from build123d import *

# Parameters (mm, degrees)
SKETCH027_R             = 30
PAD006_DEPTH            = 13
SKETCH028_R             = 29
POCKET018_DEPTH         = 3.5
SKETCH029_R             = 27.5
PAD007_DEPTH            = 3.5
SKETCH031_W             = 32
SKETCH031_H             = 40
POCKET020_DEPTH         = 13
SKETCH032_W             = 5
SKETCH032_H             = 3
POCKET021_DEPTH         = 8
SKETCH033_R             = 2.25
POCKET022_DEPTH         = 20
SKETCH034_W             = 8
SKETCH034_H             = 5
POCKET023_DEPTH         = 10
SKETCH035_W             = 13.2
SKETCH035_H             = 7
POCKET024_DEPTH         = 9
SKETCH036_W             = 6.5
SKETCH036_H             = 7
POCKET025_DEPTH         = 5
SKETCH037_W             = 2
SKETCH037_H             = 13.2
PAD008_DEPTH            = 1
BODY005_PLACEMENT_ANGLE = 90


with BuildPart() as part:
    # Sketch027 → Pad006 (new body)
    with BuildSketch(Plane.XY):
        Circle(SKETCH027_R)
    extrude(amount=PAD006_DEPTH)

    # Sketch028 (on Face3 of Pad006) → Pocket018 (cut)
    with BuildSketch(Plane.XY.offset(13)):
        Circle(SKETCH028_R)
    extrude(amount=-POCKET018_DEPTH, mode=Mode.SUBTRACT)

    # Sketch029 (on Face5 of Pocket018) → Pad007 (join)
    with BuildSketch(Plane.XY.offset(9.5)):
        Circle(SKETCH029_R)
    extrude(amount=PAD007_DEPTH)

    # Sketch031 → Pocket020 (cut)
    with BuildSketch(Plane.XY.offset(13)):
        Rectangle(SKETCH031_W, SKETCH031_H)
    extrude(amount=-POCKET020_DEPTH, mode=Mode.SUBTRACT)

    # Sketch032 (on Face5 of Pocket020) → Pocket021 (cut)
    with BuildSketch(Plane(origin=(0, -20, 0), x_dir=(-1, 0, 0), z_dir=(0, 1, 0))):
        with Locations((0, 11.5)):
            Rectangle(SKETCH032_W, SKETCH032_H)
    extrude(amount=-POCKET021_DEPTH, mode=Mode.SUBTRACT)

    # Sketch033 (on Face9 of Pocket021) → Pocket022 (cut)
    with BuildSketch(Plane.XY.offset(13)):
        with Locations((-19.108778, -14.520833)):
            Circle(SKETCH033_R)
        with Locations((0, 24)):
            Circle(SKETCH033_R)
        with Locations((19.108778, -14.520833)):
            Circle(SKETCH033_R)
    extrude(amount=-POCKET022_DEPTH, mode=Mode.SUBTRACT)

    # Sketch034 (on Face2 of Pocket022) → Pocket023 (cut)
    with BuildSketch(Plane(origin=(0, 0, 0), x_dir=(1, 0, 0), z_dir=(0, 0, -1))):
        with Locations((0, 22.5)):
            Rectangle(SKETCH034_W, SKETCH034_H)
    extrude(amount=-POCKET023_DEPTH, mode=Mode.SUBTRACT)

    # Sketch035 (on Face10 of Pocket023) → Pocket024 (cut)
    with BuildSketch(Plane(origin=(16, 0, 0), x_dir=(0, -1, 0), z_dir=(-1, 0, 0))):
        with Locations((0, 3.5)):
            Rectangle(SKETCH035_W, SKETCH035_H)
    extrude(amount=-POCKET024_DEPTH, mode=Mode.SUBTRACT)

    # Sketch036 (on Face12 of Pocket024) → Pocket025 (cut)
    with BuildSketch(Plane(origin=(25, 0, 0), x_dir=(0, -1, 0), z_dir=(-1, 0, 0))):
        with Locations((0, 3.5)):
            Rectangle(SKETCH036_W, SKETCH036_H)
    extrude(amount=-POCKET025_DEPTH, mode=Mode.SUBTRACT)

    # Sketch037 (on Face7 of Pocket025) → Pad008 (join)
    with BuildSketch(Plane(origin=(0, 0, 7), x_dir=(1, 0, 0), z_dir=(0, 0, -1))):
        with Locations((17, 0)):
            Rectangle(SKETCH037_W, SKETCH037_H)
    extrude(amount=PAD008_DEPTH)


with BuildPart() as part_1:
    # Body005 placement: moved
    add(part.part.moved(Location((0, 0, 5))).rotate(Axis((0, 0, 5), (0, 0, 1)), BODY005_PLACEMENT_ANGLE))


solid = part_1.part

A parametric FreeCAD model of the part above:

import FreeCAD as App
import Part
import Sketcher

V = App.Vector


def add_polygon(sketch, points):
    """Adds a closed chain of lines whose ends are joined by coincident constraints."""
    first, n = sketch.GeometryCount, len(points)
    for a, b in zip(points, points[1:] + points[:1]):
        sketch.addGeometry(Part.LineSegment(App.Vector(*a, 0), App.Vector(*b, 0)), False)
    for i in range(n):
        sketch.addConstraint(Sketcher.Constraint("Coincident", first + i, 2, first + (i + 1) % n, 1))

doc = App.newDocument("Part")
body = doc.addObject("PartDesign::Body", "Body")

sketch1 = body.newObject("Sketcher::SketchObject", "Sketch")
sketch1.AttachmentSupport = (doc.getObject("XY_Plane"), [""])
sketch1.MapMode = "FlatFace"
sketch1.addGeometry(Part.Circle(V(0, 0, 0), V(0, 0, 1), 30), False)
sketch1.addConstraint([
    Sketcher.Constraint("Coincident", 0, 3, -1, 1),
    Sketcher.Constraint("Diameter", 0, 60.0),
])
pad1 = body.newObject("PartDesign::Pad", "Pad")
pad1.Profile = sketch1
pad1.Length = 13

sketch2 = body.newObject("Sketcher::SketchObject", "Sketch001")
sketch2.AttachmentSupport = (doc.getObject("XY_Plane"), [""])
sketch2.MapMode = "FlatFace"
sketch2.AttachmentOffset = App.Placement(V(0, 0, 13), App.Rotation())
sketch2.addGeometry(Part.Circle(V(0, 0, 0), V(0, 0, 1), 29), False)
sketch2.addConstraint([
    Sketcher.Constraint("Coincident", 0, 3, -1, 1),
    Sketcher.Constraint("Diameter", 0, 58.0),
])
pocket1 = body.newObject("PartDesign::Pocket", "Pocket")
pocket1.Profile = sketch2
pocket1.Length = 3.5

sketch3 = body.newObject("Sketcher::SketchObject", "Sketch002")
sketch3.AttachmentSupport = (doc.getObject("XY_Plane"), [""])
sketch3.MapMode = "FlatFace"
sketch3.AttachmentOffset = App.Placement(V(0, 0, 9.5), App.Rotation())
sketch3.addGeometry(Part.Circle(V(0, 0, 0), V(0, 0, 1), 28), False)
sketch3.addConstraint([
    Sketcher.Constraint("Coincident", 0, 3, -1, 1),
    Sketcher.Constraint("Diameter", 0, 55.0),
])
pad2 = body.newObject("PartDesign::Pad", "Pad001")
pad2.Profile = sketch3
pad2.Length = 3.5

sketch4 = body.newObject("Sketcher::SketchObject", "Sketch003")
sketch4.AttachmentSupport = (doc.getObject("XY_Plane"), [""])
sketch4.MapMode = "FlatFace"
sketch4.AttachmentOffset = App.Placement(V(0, 0, 13), App.Rotation())
add_polygon(sketch4, [(-16, 20), (-16, -20), (16, -20), (16, 20)])
sketch4.addConstraint([
    Sketcher.Constraint("Vertical", 0),
    Sketcher.Constraint("Horizontal", 1),
    Sketcher.Constraint("Vertical", 2),
    Sketcher.Constraint("Horizontal", 3),
    Sketcher.Constraint("Symmetric", 0, 2, 2, 2, -1, 1),
    Sketcher.Constraint("DistanceX", 1, 1, 1, 2, 32.0),
    Sketcher.Constraint("DistanceY", 0, 2, 0, 1, 40.0),
])
pocket2 = body.newObject("PartDesign::Pocket", "Pocket001")
pocket2.Profile = sketch4
pocket2.Length = 13

sketch5 = body.newObject("Sketcher::SketchObject", "Sketch004")
sketch5.AttachmentSupport = (doc.getObject("XZ_Plane"), [""])
sketch5.MapMode = "FlatFace"
sketch5.AttachmentOffset = App.Placement(V(0, 0, 20), App.Rotation())
add_polygon(sketch5, [(2.5, 13), (2.5, 10), (-2.5, 10), (-2.5, 13)])
sketch5.addConstraint([
    Sketcher.Constraint("Vertical", 0),
    Sketcher.Constraint("Horizontal", 1),
    Sketcher.Constraint("Vertical", 2),
    Sketcher.Constraint("Horizontal", 3),
    Sketcher.Constraint("DistanceX", 1, 2, 1, 1, 5.0),
    Sketcher.Constraint("DistanceY", 0, 2, 0, 1, 3.0),
    Sketcher.Constraint("DistanceY", -1, 1, 0, 2, 10.0),
    Sketcher.Constraint("DistanceX", -1, 1, 0, 2, 2.5),
])
pocket3 = body.newObject("PartDesign::Pocket", "Pocket002")
pocket3.Profile = sketch5
pocket3.Length = 8
pocket3.Reversed = True

sketch6 = body.newObject("Sketcher::SketchObject", "Sketch005")
sketch6.AttachmentSupport = (doc.getObject("XY_Plane"), [""])
sketch6.MapMode = "FlatFace"
sketch6.AttachmentOffset = App.Placement(V(0, 0, 13), App.Rotation())
sketch6.addGeometry([
    Part.Circle(V(-19.1, -14.5, 0), V(0, 0, 1), 2.2),
    Part.Circle(V(0, 24, 0), V(0, 0, 1), 2.2),
    Part.Circle(V(19.1, -14.5, 0), V(0, 0, 1), 2.2),
], False)
sketch6.addConstraint([
    Sketcher.Constraint("Equal", 0, 1),
    Sketcher.Constraint("Equal", 1, 2),
    Sketcher.Constraint("Symmetric", 0, 3, 2, 3, -2),
    Sketcher.Constraint("PointOnObject", 1, 3, -2),
    Sketcher.Constraint("Diameter", 0, 4.5),
    Sketcher.Constraint("DistanceY", -1, 1, 1, 3, 24.0),
    Sketcher.Constraint("DistanceX", 0, 3, -1, 1, 19.108778),
    Sketcher.Constraint("DistanceY", 0, 3, -1, 1, 14.520833),
])
pocket4 = body.newObject("PartDesign::Pocket", "Pocket003")
pocket4.Profile = sketch6
pocket4.Length = 20

sketch7 = body.newObject("Sketcher::SketchObject", "Sketch006")
sketch7.AttachmentSupport = (doc.getObject("XY_Plane"), [""])
sketch7.MapMode = "FlatFace"
add_polygon(sketch7, [(-4, -25), (-4, -20), (4, -20), (4, -25)])
sketch7.addConstraint([
    Sketcher.Constraint("Vertical", 0),
    Sketcher.Constraint("Horizontal", 1),
    Sketcher.Constraint("Vertical", 2),
    Sketcher.Constraint("Horizontal", 3),
    Sketcher.Constraint("DistanceX", 1, 1, 1, 2, 8.0),
    Sketcher.Constraint("DistanceY", 0, 1, 0, 2, 5.0),
    Sketcher.Constraint("DistanceX", 0, 2, -1, 1, 4.0),
    Sketcher.Constraint("DistanceY", 0, 2, -1, 1, 20.0),
])
pocket5 = body.newObject("PartDesign::Pocket", "Pocket004")
pocket5.Profile = sketch7
pocket5.Length = 10
pocket5.Reversed = True

sketch8 = body.newObject("Sketcher::SketchObject", "Sketch007")
sketch8.AttachmentSupport = (doc.getObject("YZ_Plane"), [""])
sketch8.MapMode = "FlatFace"
sketch8.AttachmentOffset = App.Placement(V(0, 0, 16), App.Rotation())
add_polygon(sketch8, [(7, 7), (7, 0), (-7, 0), (-7, 7)])
sketch8.addConstraint([
    Sketcher.Constraint("Vertical", 0),
    Sketcher.Constraint("Horizontal", 1),
    Sketcher.Constraint("Vertical", 2),
    Sketcher.Constraint("Horizontal", 3),
    Sketcher.Constraint("Symmetric", 0, 2, 1, 2, -1, 1),
    Sketcher.Constraint("DistanceY", 0, 2, 0, 1, 7.0),
    Sketcher.Constraint("DistanceX", 1, 2, 1, 1, 13.2),
])
pocket6 = body.newObject("PartDesign::Pocket", "Pocket005")
pocket6.Profile = sketch8
pocket6.Length = 9
pocket6.Reversed = True

sketch9 = body.newObject("Sketcher::SketchObject", "Sketch008")
sketch9.AttachmentSupport = (doc.getObject("YZ_Plane"), [""])
sketch9.MapMode = "FlatFace"
sketch9.AttachmentOffset = App.Placement(V(0, 0, 25), App.Rotation())
add_polygon(sketch9, [(3, 7), (3, 0), (-3, 0), (-3, 7)])
sketch9.addConstraint([
    Sketcher.Constraint("Vertical", 0),
    Sketcher.Constraint("Horizontal", 1),
    Sketcher.Constraint("Vertical", 2),
    Sketcher.Constraint("Horizontal", 3),
    Sketcher.Constraint("Symmetric", 0, 2, 1, 2, -1, 1),
    Sketcher.Constraint("DistanceY", 0, 2, 0, 1, 7.0),
    Sketcher.Constraint("DistanceX", 1, 2, 1, 1, 6.5),
])
pocket7 = body.newObject("PartDesign::Pocket", "Pocket006")
pocket7.Profile = sketch9
pocket7.Length = 5
pocket7.Reversed = True

sketch10 = body.newObject("Sketcher::SketchObject", "Sketch009")
sketch10.AttachmentSupport = (doc.getObject("XY_Plane"), [""])
sketch10.MapMode = "FlatFace"
sketch10.AttachmentOffset = App.Placement(V(0, 0, 7), App.Rotation())
add_polygon(sketch10, [(16, -6.6), (16, 6.6), (18, 6.6), (18, -6.6)])
sketch10.addConstraint([
    Sketcher.Constraint("Vertical", 0),
    Sketcher.Constraint("Horizontal", 1),
    Sketcher.Constraint("Vertical", 2),
    Sketcher.Constraint("Horizontal", 3),
    Sketcher.Constraint("DistanceX", 1, 1, 1, 2, 2.0),
    Sketcher.Constraint("DistanceY", 0, 1, 0, 2, 13.2),
    Sketcher.Constraint("DistanceX", -1, 1, 0, 2, 16.0),
    Sketcher.Constraint("DistanceY", -1, 1, 0, 2, 6.6),
])
pad3 = body.newObject("PartDesign::Pad", "Pad002")
pad3.Profile = sketch10
pad3.Length = 1
pad3.Reversed = True
body2 = doc.addObject("PartDesign::Body", "Body001")
doc.recompute()

body.Placement = App.Placement(V(0, 0, 5), App.Rotation(V(0, 0, 1), 90))
boolean = body2.newObject("PartDesign::Boolean", "Boolean")
boolean.Type = "Fuse"
boolean.addObjects([body])

doc.recompute()
